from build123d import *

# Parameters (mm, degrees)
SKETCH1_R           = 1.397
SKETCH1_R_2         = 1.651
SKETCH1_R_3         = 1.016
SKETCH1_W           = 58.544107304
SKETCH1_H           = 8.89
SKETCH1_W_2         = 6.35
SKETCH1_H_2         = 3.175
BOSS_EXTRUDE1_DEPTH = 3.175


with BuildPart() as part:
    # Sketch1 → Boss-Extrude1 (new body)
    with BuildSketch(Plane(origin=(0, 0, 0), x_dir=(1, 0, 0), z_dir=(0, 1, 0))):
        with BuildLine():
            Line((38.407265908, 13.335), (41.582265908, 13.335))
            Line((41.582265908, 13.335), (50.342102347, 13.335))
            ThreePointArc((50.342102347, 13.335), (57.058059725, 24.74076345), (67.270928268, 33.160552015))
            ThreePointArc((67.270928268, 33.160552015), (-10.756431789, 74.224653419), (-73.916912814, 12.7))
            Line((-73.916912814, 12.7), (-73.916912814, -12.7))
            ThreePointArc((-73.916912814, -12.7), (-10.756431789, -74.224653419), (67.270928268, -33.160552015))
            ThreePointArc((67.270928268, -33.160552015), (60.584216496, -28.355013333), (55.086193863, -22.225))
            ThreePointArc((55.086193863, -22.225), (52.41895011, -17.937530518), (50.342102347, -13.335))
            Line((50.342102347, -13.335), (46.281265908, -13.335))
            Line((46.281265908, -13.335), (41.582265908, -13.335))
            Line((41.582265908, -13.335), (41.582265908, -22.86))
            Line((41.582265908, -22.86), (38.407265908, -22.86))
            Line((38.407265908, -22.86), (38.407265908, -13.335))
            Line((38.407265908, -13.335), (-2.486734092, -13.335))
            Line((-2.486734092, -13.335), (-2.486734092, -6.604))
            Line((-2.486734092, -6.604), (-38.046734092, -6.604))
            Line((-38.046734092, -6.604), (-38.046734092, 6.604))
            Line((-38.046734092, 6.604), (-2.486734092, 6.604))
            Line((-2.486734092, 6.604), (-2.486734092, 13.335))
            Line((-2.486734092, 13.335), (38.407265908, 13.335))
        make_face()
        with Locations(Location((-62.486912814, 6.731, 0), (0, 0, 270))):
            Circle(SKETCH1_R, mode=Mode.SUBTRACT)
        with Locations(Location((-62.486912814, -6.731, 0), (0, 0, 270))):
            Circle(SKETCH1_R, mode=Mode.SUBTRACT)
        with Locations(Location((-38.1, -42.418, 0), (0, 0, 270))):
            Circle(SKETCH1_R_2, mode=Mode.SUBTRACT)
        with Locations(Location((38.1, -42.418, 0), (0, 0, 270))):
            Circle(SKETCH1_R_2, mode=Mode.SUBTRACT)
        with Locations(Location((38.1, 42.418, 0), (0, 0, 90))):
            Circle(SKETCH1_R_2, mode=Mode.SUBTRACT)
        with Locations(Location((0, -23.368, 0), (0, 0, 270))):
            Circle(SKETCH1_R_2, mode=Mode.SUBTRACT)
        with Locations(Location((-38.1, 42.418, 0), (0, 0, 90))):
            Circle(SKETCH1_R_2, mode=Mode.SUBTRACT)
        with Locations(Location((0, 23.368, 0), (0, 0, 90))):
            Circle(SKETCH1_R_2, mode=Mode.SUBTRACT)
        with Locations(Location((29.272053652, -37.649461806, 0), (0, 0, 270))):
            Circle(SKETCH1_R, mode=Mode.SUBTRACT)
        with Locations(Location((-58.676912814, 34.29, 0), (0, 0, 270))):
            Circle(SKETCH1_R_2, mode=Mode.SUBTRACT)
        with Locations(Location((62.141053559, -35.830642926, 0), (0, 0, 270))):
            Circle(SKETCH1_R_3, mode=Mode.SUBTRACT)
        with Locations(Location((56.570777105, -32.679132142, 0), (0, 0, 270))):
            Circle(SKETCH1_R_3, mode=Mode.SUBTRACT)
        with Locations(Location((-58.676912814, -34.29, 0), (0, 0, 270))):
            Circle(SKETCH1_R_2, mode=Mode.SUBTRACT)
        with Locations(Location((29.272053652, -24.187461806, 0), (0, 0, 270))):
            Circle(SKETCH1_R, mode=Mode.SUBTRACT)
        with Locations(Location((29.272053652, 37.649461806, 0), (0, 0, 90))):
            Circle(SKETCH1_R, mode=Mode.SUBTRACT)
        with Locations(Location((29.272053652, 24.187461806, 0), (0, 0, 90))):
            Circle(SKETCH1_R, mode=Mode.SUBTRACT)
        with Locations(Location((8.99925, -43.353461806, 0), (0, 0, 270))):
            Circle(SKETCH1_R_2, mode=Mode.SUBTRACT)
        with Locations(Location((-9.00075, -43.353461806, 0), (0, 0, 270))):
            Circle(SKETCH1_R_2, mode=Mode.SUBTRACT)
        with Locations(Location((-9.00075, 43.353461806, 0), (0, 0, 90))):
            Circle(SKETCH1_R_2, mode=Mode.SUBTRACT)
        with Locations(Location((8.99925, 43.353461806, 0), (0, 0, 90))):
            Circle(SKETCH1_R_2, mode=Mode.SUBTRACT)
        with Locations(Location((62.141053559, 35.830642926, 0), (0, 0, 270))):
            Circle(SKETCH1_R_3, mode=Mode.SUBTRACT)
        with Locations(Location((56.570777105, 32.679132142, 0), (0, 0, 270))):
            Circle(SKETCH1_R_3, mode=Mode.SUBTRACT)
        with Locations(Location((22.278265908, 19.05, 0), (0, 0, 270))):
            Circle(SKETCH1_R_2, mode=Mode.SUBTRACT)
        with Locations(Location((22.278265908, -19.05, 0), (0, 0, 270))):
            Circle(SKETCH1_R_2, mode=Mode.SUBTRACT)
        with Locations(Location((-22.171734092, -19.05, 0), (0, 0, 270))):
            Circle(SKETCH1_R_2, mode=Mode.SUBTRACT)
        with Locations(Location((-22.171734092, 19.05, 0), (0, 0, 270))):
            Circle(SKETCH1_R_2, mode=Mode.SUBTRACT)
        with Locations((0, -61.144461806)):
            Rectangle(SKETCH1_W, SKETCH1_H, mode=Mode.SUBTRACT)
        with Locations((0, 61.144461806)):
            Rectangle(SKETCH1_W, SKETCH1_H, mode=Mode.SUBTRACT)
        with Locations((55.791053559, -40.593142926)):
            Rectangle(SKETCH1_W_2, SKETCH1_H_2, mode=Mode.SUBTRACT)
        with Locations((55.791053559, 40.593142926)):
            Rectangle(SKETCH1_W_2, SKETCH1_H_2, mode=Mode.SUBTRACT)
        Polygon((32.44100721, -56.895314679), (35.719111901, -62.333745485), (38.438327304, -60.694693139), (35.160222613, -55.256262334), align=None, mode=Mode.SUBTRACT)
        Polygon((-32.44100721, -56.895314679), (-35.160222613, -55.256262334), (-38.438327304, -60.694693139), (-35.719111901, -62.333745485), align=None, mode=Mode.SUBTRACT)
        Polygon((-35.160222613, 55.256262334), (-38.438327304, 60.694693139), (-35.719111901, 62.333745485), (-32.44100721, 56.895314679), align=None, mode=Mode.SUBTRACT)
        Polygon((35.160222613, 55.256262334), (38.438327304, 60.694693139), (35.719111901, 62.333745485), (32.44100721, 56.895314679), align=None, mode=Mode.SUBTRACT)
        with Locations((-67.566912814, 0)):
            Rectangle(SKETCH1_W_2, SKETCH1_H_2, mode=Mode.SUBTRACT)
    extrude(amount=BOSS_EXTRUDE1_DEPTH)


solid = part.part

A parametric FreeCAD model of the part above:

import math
import FreeCAD as App
import Part
import Sketcher
Q = App.Units.Quantity


def add_polygon(sketch, points):
    """Adds a closed chain of lines whose ends are joined by coincident constraints."""
    first, n = sketch.GeometryCount, len(points)
    for a, b in zip(points, points[1:] + points[:1]):
        sketch.addGeometry(Part.LineSegment(App.Vector(*a, 0), App.Vector(*b, 0)), False)
    for i in range(n):
        sketch.addConstraint(Sketcher.Constraint("Coincident", first + i, 2, first + (i + 1) % n, 1))

doc = App.newDocument("Part")
body = doc.addObject("PartDesign::Body", "Body")

sketch1 = body.newObject("Sketcher::SketchObject", "Sketch")
sketch1.AttachmentSupport = (doc.getObject("XZ_Plane"), [""])
sketch1.MapMode = "FlatFace"
sketch1.addGeometry(Part.ArcOfCircle(Part.Circle(App.Vector(86.032266, 0, 0), App.Vector(0, 0, 1), 38.1), math.radians(-159.512685), math.radians(-119.5)), False)
sketch1.addGeometry(Part.ArcOfCircle(Part.Circle(App.Vector(0, 0, 0), App.Vector(0, 0, 1), 75), math.radians(-170.25094), math.radians(-26.240546)), False)
sketch1.addGeometry(Part.LineSegment(App.Vector(-73.916913, -12.7, 0), App.Vector(-73.916913, 12.7, 0)), False)
sketch1.addGeometry(Part.ArcOfCircle(Part.Circle(App.Vector(0, 0, 0), App.Vector(0, 0, 1), 75), math.radians(26.240546), math.radians(170.25094)), False)
sketch1.addGeometry(Part.ArcOfCircle(Part.Circle(App.Vector(86.032266, 0, 0), App.Vector(0, 0, 1), 38.1), math.radians(119.5), math.radians(144.314665)), False)
sketch1.addGeometry(Part.ArcOfCircle(Part.Circle(App.Vector(86.032266, 0, 0), App.Vector(0, 0, 1), 38.1), math.radians(144.314665), math.radians(159.512685)), False)
sketch1.addGeometry(Part.LineSegment(App.Vector(50.342102, 13.335, 0), App.Vector(41.582266, 13.335, 0)), False)
sketch1.addGeometry(Part.LineSegment(App.Vector(41.582266, 13.335, 0), App.Vector(41.582266, 22.86, 0)), False)
sketch1.addGeometry(Part.LineSegment(App.Vector(41.582266, 22.86, 0), App.Vector(38.407266, 22.86, 0)), False)
sketch1.addGeometry(Part.LineSegment(App.Vector(38.407266, 22.86, 0), App.Vector(38.407266, 13.335, 0)), False)
sketch1.addGeometry(Part.LineSegment(App.Vector(38.407266, 13.335, 0), App.Vector(-2.486734, 13.335, 0)), False)
sketch1.addGeometry(Part.LineSegment(App.Vector(-2.486734, 13.335, 0), App.Vector(-2.486734, 6.604, 0)), False)
sketch1.addGeometry(Part.LineSegment(App.Vector(-2.486734, 6.604, 0), App.Vector(-38.046734, 6.604, 0)), False)
sketch1.addGeometry(Part.LineSegment(App.Vector(-38.046734, 6.604, 0), App.Vector(-38.046734, -6.604, 0)), False)
sketch1.addGeometry(Part.LineSegment(App.Vector(-38.046734, -6.604, 0), App.Vector(-2.486734, -6.604, 0)), False)
sketch1.addGeometry(Part.LineSegment(App.Vector(-2.486734, -6.604, 0), App.Vector(-2.486734, -13.335, 0)), False)
sketch1.addGeometry(Part.LineSegment(App.Vector(-2.486734, -13.335, 0), App.Vector(50.342102, -13.335, 0)), False)
sketch1.addGeometry(Part.Circle(App.Vector(-58.676913, 34.29, 0), App.Vector(0, 0, 1), 1.651), False)
sketch1.addGeometry(Part.Circle(App.Vector(-38.1, 42.418, 0), App.Vector(0, 0, 1), 1.651), False)
add_polygon(sketch1, [(-35.160223, 55.256262), (-32.441007, 56.895315), (-35.719112, 62.333745), (-38.438327, 60.694693)])
sketch1.addGeometry(Part.Circle(App.Vector(-9.00075, 43.353462, 0), App.Vector(0, 0, 1), 1.651), False)
sketch1.addGeometry(Part.Circle(App.Vector(-62.486913, 6.731, 0), App.Vector(0, 0, 1), 1.397), False)
sketch1.addGeometry(Part.Circle(App.Vector(-22.171734, 19.05, 0), App.Vector(0, 0, 1), 1.651), False)
add_polygon(sketch1, [(29.272054, 65.589462), (-29.272054, 65.589462), (-29.272054, 56.699462), (29.272054, 56.699462)])
sketch1.addGeometry(Part.Circle(App.Vector(8.99925, 43.353462, 0), App.Vector(0, 0, 1), 1.651), False)
sketch1.addGeometry(Part.Circle(App.Vector(29.272054, 37.649462, 0), App.Vector(0, 0, 1), 1.397), False)
add_polygon(sketch1, [(35.719112, 62.333745), (32.441007, 56.895315), (35.160223, 55.256262), (38.438327, 60.694693)])
sketch1.addGeometry(Part.Circle(App.Vector(38.1, 42.418, 0), App.Vector(0, 0, 1), 1.651), False)
add_polygon(sketch1, [(58.966054, 42.180643), (52.616054, 42.180643), (52.616054, 39.005643), (58.966054, 39.005643)])
sketch1.addGeometry(Part.Circle(App.Vector(62.141054, 35.830643, 0), App.Vector(0, 0, 1), 1.016), False)
sketch1.addGeometry(Part.Circle(App.Vector(0, 23.368, 0), App.Vector(0, 0, 1), 1.651), False)
sketch1.addGeometry(Part.Circle(App.Vector(29.272054, 24.187462, 0), App.Vector(0, 0, 1), 1.397), False)
sketch1.addGeometry(Part.Circle(App.Vector(22.278266, 19.05, 0), App.Vector(0, 0, 1), 1.651), False)
sketch1.addGeometry(Part.Circle(App.Vector(56.570777, 32.679132, 0), App.Vector(0, 0, 1), 1.016), False)
add_polygon(sketch1, [(-64.391913, 1.5875), (-70.741913, 1.5875), (-70.741913, -1.5875), (-64.391913, -1.5875)])
sketch1.addGeometry(Part.Circle(App.Vector(-62.486913, -6.731, 0), App.Vector(0, 0, 1), 1.397), False)
sketch1.addGeometry(Part.Circle(App.Vector(-22.171734, -19.05, 0), App.Vector(0, 0, 1), 1.651), False)
sketch1.addGeometry(Part.Circle(App.Vector(-58.676913, -34.29, 0), App.Vector(0, 0, 1), 1.651), False)
sketch1.addGeometry(Part.Circle(App.Vector(-38.1, -42.418, 0), App.Vector(0, 0, 1), 1.651), False)
sketch1.addGeometry(Part.Circle(App.Vector(-9.00075, -43.353462, 0), App.Vector(0, 0, 1), 1.651), False)
add_polygon(sketch1, [(-32.441007, -56.895315), (-35.160223, -55.256262), (-38.438327, -60.694693), (-35.719112, -62.333745)])
sketch1.addGeometry(Part.Circle(App.Vector(0, -23.368, 0), App.Vector(0, 0, 1), 1.651), False)
sketch1.addGeometry(Part.Circle(App.Vector(22.278266, -19.05, 0), App.Vector(0, 0, 1), 1.651), False)
sketch1.addGeometry(Part.Circle(App.Vector(29.272054, -24.187462, 0), App.Vector(0, 0, 1), 1.397), False)
sketch1.addGeometry(Part.Circle(App.Vector(56.570777, -32.679132, 0), App.Vector(0, 0, 1), 1.016), False)
sketch1.addGeometry(Part.Circle(App.Vector(8.99925, -43.353462, 0), App.Vector(0, 0, 1), 1.651), False)
sketch1.addGeometry(Part.Circle(App.Vector(29.272054, -37.649462, 0), App.Vector(0, 0, 1), 1.397), False)
add_polygon(sketch1, [(29.272054, -56.699462), (-29.272054, -56.699462), (-29.272054, -65.589462), (29.272054, -65.589462)])
sketch1.addGeometry(Part.Circle(App.Vector(38.1, -42.418, 0), App.Vector(0, 0, 1), 1.651), False)
sketch1.addGeometry(Part.Circle(App.Vector(62.141054, -35.830643, 0), App.Vector(0, 0, 1), 1.016), False)
add_polygon(sketch1, [(58.966054, -39.005643), (52.616054, -39.005643), (52.616054, -42.180643), (58.966054, -42.180643)])
add_polygon(sketch1, [(38.438327, -60.694693), (35.160223, -55.256262), (32.441007, -56.895315), (35.719112, -62.333745)])
sketch1.addConstraint(Sketcher.Constraint("Coincident", 0, 2, 1, 2))
sketch1.addConstraint(Sketcher.Constraint("Coincident", 1, 1, 2, 1))
sketch1.addConstraint(Sketcher.Constraint("Coincident", 2, 2, 3, 2))
sketch1.addConstraint(Sketcher.Constraint("Coincident", 3, 1, 4, 1))
sketch1.addConstraint(Sketcher.Constraint("Tangent", 4, 2, 5, 1))
sketch1.addConstraint(Sketcher.Constraint("Coincident", 5, 2, 6, 1))
sketch1.addConstraint(Sketcher.Constraint("Coincident", 6, 2, 7, 1))
sketch1.addConstraint(Sketcher.Constraint("Coincident", 7, 2, 8, 1))
sketch1.addConstraint(Sketcher.Constraint("Coincident", 8, 2, 9, 1))
sketch1.addConstraint(Sketcher.Constraint("Coincident", 9, 2, 10, 1))
sketch1.addConstraint(Sketcher.Constraint("Coincident", 10, 2, 11, 1))
sketch1.addConstraint(Sketcher.Constraint("Coincident", 11, 2, 12, 1))
sketch1.addConstraint(Sketcher.Constraint("Coincident", 12, 2, 13, 1))
sketch1.addConstraint(Sketcher.Constraint("Coincident", 13, 2, 14, 1))
sketch1.addConstraint(Sketcher.Constraint("Coincident", 14, 2, 15, 1))
sketch1.addConstraint(Sketcher.Constraint("Coincident", 15, 2, 16, 1))
sketch1.addConstraint(Sketcher.Constraint("Coincident", 16, 2, 0, 1))
sketch1.addConstraint(Sketcher.Constraint("Vertical", 2))
sketch1.addConstraint(Sketcher.Constraint("Horizontal", 6))
sketch1.addConstraint(Sketcher.Constraint("Vertical", 7))
sketch1.addConstraint(Sketcher.Constraint("Horizontal", 8))
sketch1.addConstraint(Sketcher.Constraint("Vertical", 9))
sketch1.addConstraint(Sketcher.Constraint("Horizontal", 10))
sketch1.addConstraint(Sketcher.Constraint("Vertical", 11))
sketch1.addConstraint(Sketcher.Constraint("Horizontal", 12))
sketch1.addConstraint(Sketcher.Constraint("Vertical", 13))
sketch1.addConstraint(Sketcher.Constraint("Horizontal", 14))
sketch1.addConstraint(Sketcher.Constraint("Vertical", 15))
sketch1.addConstraint(Sketcher.Constraint("Horizontal", 16))
sketch1.addConstraint(Sketcher.Constraint("Horizontal", 26))
sketch1.addConstraint(Sketcher.Constraint("Vertical", 27))
sketch1.addConstraint(Sketcher.Constraint("Horizontal", 28))
sketch1.addConstraint(Sketcher.Constraint("Vertical", 29))
sketch1.addConstraint(Sketcher.Constraint("Horizontal", 37))
sketch1.addConstraint(Sketcher.Constraint("Vertical", 38))
sketch1.addConstraint(Sketcher.Constraint("Horizontal", 39))
sketch1.addConstraint(Sketcher.Constraint("Vertical", 40))
sketch1.addConstraint(Sketcher.Constraint("Horizontal", 46))
sketch1.addConstraint(Sketcher.Constraint("Vertical", 47))
sketch1.addConstraint(Sketcher.Constraint("Horizontal", 48))
sketch1.addConstraint(Sketcher.Constraint("Vertical", 49))
sketch1.addConstraint(Sketcher.Constraint("Horizontal", 65))
sketch1.addConstraint(Sketcher.Constraint("Vertical", 66))
sketch1.addConstraint(Sketcher.Constraint("Horizontal", 67))
sketch1.addConstraint(Sketcher.Constraint("Vertical", 68))
sketch1.addConstraint(Sketcher.Constraint("Horizontal", 71))
sketch1.addConstraint(Sketcher.Constraint("Vertical", 72))
sketch1.addConstraint(Sketcher.Constraint("Horizontal", 73))
sketch1.addConstraint(Sketcher.Constraint("Vertical", 74))
sketch1.addConstraint(Sketcher.Constraint("Coincident", 1, 3, -1, 1))
sketch1.addConstraint(Sketcher.Constraint("Coincident", 3, 3, -1, 1))
sketch1.addConstraint(Sketcher.Constraint("Coincident", 4, 3, 0, 3))
sketch1.addConstraint(Sketcher.Constraint("Equal", 1, 3))
sketch1.addConstraint(Sketcher.Constraint("Equal", 0, 4))
sketch1.addConstraint(Sketcher.Constraint("Equal", 4, 5))
sketch1.addConstraint(Sketcher.Constraint("Equal", 17, 18))
sketch1.addConstraint(Sketcher.Constraint("Equal", 18, 23))
sketch1.addConstraint(Sketcher.Constraint("Equal", 23, 25))
sketch1.addConstraint(Sketcher.Constraint("Equal", 25, 30))
sketch1.addConstraint(Sketcher.Constraint("Equal", 24, 31))
sketch1.addConstraint(Sketcher.Constraint("Equal", 30, 36))
sketch1.addConstraint(Sketcher.Constraint("Equal", 36, 42))
sketch1.addConstraint(Sketcher.Constraint("Equal", 31, 43))
sketch1.addConstraint(Sketcher.Constraint("Equal", 42, 44))
sketch1.addConstraint(Sketcher.Constraint("Equal", 41, 45))
sketch1.addConstraint(Sketcher.Constraint("Equal", 43, 50))
sketch1.addConstraint(Sketcher.Constraint("Equal", 44, 51))
sketch1.addConstraint(Sketcher.Constraint("Equal", 51, 52))
sketch1.addConstraint(Sketcher.Constraint("Equal", 52, 53))
sketch1.addConstraint(Sketcher.Constraint("Equal", 53, 54))
sketch1.addConstraint(Sketcher.Constraint("Equal", 54, 59))
sketch1.addConstraint(Sketcher.Constraint("Equal", 59, 60))
sketch1.addConstraint(Sketcher.Constraint("Equal", 50, 61))
sketch1.addConstraint(Sketcher.Constraint("Equal", 45, 62))
sketch1.addConstraint(Sketcher.Constraint("Equal", 60, 63))
sketch1.addConstraint(Sketcher.Constraint("Equal", 61, 64))
sketch1.addConstraint(Sketcher.Constraint("Equal", 63, 69))
sketch1.addConstraint(Sketcher.Constraint("Equal", 62, 70))
sketch1.addConstraint(Sketcher.Constraint("Symmetric", 36, 3, 53, 3, -1, 1))
sketch1.addConstraint(Sketcher.Constraint("Symmetric", 42, 3, 59, 3, -1, 1))
sketch1.addConstraint(Sketcher.Constraint("Symmetric", 18, 3, 69, 3, -1, 1))
sketch1.addConstraint(Sketcher.Constraint("Symmetric", 33, 2, 55, 2, -1, 1))
sketch1.addConstraint(Sketcher.Constraint("Symmetric", 34, 2, 56, 2, -1, 1))
sketch1.addConstraint(Sketcher.Constraint("Symmetric", 35, 2, 57, 2, -1, 1))
sketch1.addConstraint(Sketcher.Constraint("Symmetric", 32, 2, 58, 2, -1, 1))
sketch1.addConstraint(Sketcher.Constraint("Symmetric", 28, 2, 65, 2, -1, 1))
sketch1.addConstraint(Sketcher.Constraint("Symmetric", 26, 2, 67, 2, -1, 1))
sketch1.addConstraint(Sketcher.Constraint("Symmetric", 22, 2, 75, 2, -1, 1))
sketch1.addConstraint(Sketcher.Constraint("Symmetric", 19, 2, 76, 2, -1, 1))
sketch1.addConstraint(Sketcher.Constraint("Symmetric", 20, 2, 77, 2, -1, 1))
sketch1.addConstraint(Sketcher.Constraint("Symmetric", 21, 2, 78, 2, -1, 1))
sketch1.addConstraint(Sketcher.Constraint("Symmetric", 18, 3, 36, 3, -2))
sketch1.addConstraint(Sketcher.Constraint("Symmetric", 19, 2, 32, 2, -2))
sketch1.addConstraint(Sketcher.Constraint("Symmetric", 22, 2, 33, 2, -2))
sketch1.addConstraint(Sketcher.Constraint("Symmetric", 21, 2, 34, 2, -2))
sketch1.addConstraint(Sketcher.Constraint("Symmetric", 20, 2, 35, 2, -2))
sketch1.addConstraint(Sketcher.Constraint("Symmetric", 24, 3, 50, 3, -1))
sketch1.addConstraint(Sketcher.Constraint("Symmetric", 25, 3, 51, 3, -1))
sketch1.addConstraint(Sketcher.Constraint("Symmetric", 17, 3, 52, 3, -1))
sketch1.addConstraint(Sketcher.Constraint("Symmetric", 23, 3, 54, 3, -1))
sketch1.addConstraint(Sketcher.Constraint("Symmetric", 44, 3, 60, 3, -1))
sketch1.addConstraint(Sketcher.Constraint("Symmetric", 43, 3, 61, 3, -1))
sketch1.addConstraint(Sketcher.Constraint("Symmetric", 45, 3, 62, 3, -1))
sketch1.addConstraint(Sketcher.Constraint("Symmetric", 30, 3, 63, 3, -1))
sketch1.addConstraint(Sketcher.Constraint("Symmetric", 31, 3, 64, 3, -1))
sketch1.addConstraint(Sketcher.Constraint("Symmetric", 41, 3, 70, 3, -1))
sketch1.addConstraint(Sketcher.Constraint("Symmetric", 11, 2, 14, 2, -1))
sketch1.addConstraint(Sketcher.Constraint("Symmetric", 5, 2, 16, 2, -1))
sketch1.addConstraint(Sketcher.Constraint("Symmetric", 38, 2, 71, 2, -1))
sketch1.addConstraint(Sketcher.Constraint("Symmetric", 40, 2, 73, 2, -1))
sketch1.addConstraint(Sketcher.Constraint("PointOnObject", 42, 3, -2))
sketch1.addConstraint(Sketcher.Constraint("Perpendicular", 19, 20))
sketch1.addConstraint(Sketcher.Constraint("Perpendicular", 20, 21))
sketch1.addConstraint(Sketcher.Constraint("Perpendicular", 21, 22))
sketch1.addConstraint(Sketcher.Constraint("Horizontal", 23, 3, 30, 3))
sketch1.addConstraint(Sketcher.Constraint("Horizontal", 25, 3, 44, 3))
sketch1.addConstraint(Sketcher.Constraint("Horizontal", 6, 2, 9, 2))
sketch1.addConstraint(Sketcher.Constraint("Vertical", 31, 3, 43, 3))
sketch1.addConstraint(Sketcher.Constraint("Vertical", 64, 3, 28, 2))
sketch1.addConstraint(Sketcher.Constraint("Vertical", 27, 2, 65, 2))
sketch1.addConstraint(Sketcher.Constraint("Equal", 39, 46))
sketch1.addConstraint(Sketcher.Constraint("Equal", 8, 38))
sketch1.addConstraint(Sketcher.Constraint("Equal", 40, 47))
sketch1.addConstraint(Sketcher.Constraint("Radius", 0, Q("1.5 in")))
sketch1.addConstraint(Sketcher.Constraint("Diameter", 17, Q("0.13 in")))
sketch1.addConstraint(Sketcher.Constraint("Diameter", 24, Q("0.11 in")))
sketch1.addConstraint(Sketcher.Constraint("Diameter", 41, Q("0.08 in")))
sketch1.addConstraint(Sketcher.Constraint("DistanceY", 2, 1, 2, 2, Q("1 in")))
sketch1.addConstraint(Sketcher.Constraint("DistanceX", 12, 2, 12, 1, Q("1.4 in")))
sketch1.addConstraint(Sketcher.Constraint("DistanceX", 10, 2, 10, 1, Q("1.61 in")))
sketch1.addConstraint(Sketcher.Constraint("DistanceX", 37, 2, 37, 1, Q("0.25 in")))
sketch1.addConstraint(Sketcher.Constraint("DistanceY", 13, 2, 13, 1, Q("0.52 in")))
sketch1.addConstraint(Sketcher.Constraint("DistanceY", 27, 2, 27, 1, Q("0.35 in")))
sketch1.addConstraint(Sketcher.Constraint("DistanceX", 18, 3, -1, 1, Q("1.5 in")))
sketch1.addConstraint(Sketcher.Constraint("DistanceY", -1, 1, 7, 2, Q("0.9 in")))
sketch1.addConstraint(Sketcher.Constraint("Distance", 20, Q("0.25 in")))
sketch1.addConstraint(Sketcher.Constraint("DistanceX", 8, 2, 8, 1, Q("0.125 in")))
sketch1.addConstraint(Sketcher.Constraint("DistanceY", 7, 1, 7, 2, Q("0.375 in")))
sketch1.addConstraint(Sketcher.Constraint("DistanceY", -1, 1, 17, 3, Q("1.35 in")))
sketch1.addConstraint(Sketcher.Constraint("DistanceY", -1, 1, 18, 3, Q("1.67 in")))
sketch1.addConstraint(Sketcher.Constraint("DistanceY", -1, 1, 25, 3, Q("0.75 in")))
sketch1.addConstraint(Sketcher.Constraint("DistanceY", -1, 1, 42, 3, Q("0.92 in")))
sketch1.addConstraint(Sketcher.Constraint("Radius", 1, 75.0))
sketch1.addConstraint(Sketcher.Constraint("Distance", 19, Q("0.125 in")))
sketch1.addConstraint(Sketcher.Constraint("DistanceY", -1, 1, 24, 3, Q("0.265 in")))
sketch1.addConstraint(Sketcher.Constraint("DistanceY", -1, 1, 4, 2, Q("0.875 in")))
sketch1.addConstraint(Sketcher.Constraint("DistanceY", -1, 1, 46, 2, Q("0.0625 in")))
sketch1.addConstraint(Sketcher.Constraint("DistanceX", 6, 2, 6, 1, 8.759836))
sketch1.addConstraint(Sketcher.Constraint("DistanceX", 26, 2, 26, 1, 58.544107))
sketch1.addConstraint(Sketcher.Constraint("DistanceX", 23, 3, -1, 1, 9.00075))
sketch1.addConstraint(Sketcher.Constraint("DistanceY", -1, 1, 23, 3, 43.353462))
sketch1.addConstraint(Sketcher.Constraint("DistanceX", -1, 1, 30, 3, 8.99925))
sketch1.addConstraint(Sketcher.Constraint("DistanceY", -1, 1, 31, 3, 37.649462))
sketch1.addConstraint(Sketcher.Constraint("DistanceY", -1, 1, 43, 3, 24.187462))
sketch1.addConstraint(Sketcher.Constraint("DistanceX", 20, 2, -1, 1, 35.719112))
sketch1.addConstraint(Sketcher.Constraint("DistanceY", -1, 1, 26, 2, 65.589462))
sketch1.addConstraint(Sketcher.Constraint("DistanceX", -1, 1, 0, 3, 86.032266))
sketch1.addConstraint(Sketcher.Constraint("DistanceX", 17, 3, -1, 1, 58.676913))
sketch1.addConstraint(Sketcher.Constraint("DistanceX", 24, 3, -1, 1, 62.486913))
sketch1.addConstraint(Sketcher.Constraint("DistanceX", 25, 3, -1, 1, 22.171734))
sketch1.addConstraint(Sketcher.Constraint("DistanceX", -1, 1, 41, 3, 62.141054))
sketch1.addConstraint(Sketcher.Constraint("DistanceY", -1, 1, 41, 3, 35.830643))
sketch1.addConstraint(Sketcher.Constraint("DistanceX", -1, 1, 44, 3, 22.278266))
sketch1.addConstraint(Sketcher.Constraint("DistanceX", -1, 1, 45, 3, 56.570777))
sketch1.addConstraint(Sketcher.Constraint("DistanceY", -1, 1, 45, 3, 32.679132))
sketch1.addConstraint(Sketcher.Constraint("DistanceX", 19, 2, -1, 1, 32.441007))
sketch1.addConstraint(Sketcher.Constraint("DistanceY", -1, 1, 19, 2, 56.895315))
sketch1.addConstraint(Sketcher.Constraint("DistanceX", -1, 1, 37, 2, 52.616054))
sketch1.addConstraint(Sketcher.Constraint("DistanceY", -1, 1, 37, 2, 42.180643))
sketch1.addConstraint(Sketcher.Constraint("DistanceX", 46, 2, -1, 1, 70.741913))
pad1 = body.newObject("PartDesign::Pad", "Pad")
pad1.Profile = sketch1
pad1.Length = Q("0.125 in")
pad1.Reversed = True

doc.recompute()
